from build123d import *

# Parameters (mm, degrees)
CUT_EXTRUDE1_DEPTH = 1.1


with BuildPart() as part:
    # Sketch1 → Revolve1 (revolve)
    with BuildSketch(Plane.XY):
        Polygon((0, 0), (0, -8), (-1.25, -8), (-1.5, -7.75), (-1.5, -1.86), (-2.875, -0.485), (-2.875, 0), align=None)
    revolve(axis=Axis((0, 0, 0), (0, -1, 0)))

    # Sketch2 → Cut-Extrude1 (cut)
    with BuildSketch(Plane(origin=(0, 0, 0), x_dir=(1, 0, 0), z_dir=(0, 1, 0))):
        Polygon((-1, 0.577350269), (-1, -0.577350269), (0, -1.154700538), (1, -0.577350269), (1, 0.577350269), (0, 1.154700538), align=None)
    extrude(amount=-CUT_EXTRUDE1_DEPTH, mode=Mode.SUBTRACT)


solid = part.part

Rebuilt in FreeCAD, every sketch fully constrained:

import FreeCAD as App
import Part
import Sketcher

V = App.Vector
Q = App.Units.Quantity


def add_polygon(sketch, points):
    """Adds a closed chain of lines whose ends are joined by coincident constraints."""
    first, n = sketch.GeometryCount, len(points)
    for a, b in zip(points, points[1:] + points[:1]):
        sketch.addGeometry(Part.LineSegment(App.Vector(*a, 0), App.Vector(*b, 0)), False)
    for i in range(n):
        sketch.addConstraint(Sketcher.Constraint("Coincident", first + i, 2, first + (i + 1) % n, 1))

doc = App.newDocument("Part")
body = doc.addObject("PartDesign::Body", "Body")

# Sketch on XY plane
sketch1 = doc.addObject("Sketcher::SketchObject", "Sketch")
body.addObject(sketch1)
sketch1.AttachmentSupport = (doc.XY_Plane, [""])
sketch1.MapMode = "FlatFace"
add_polygon(sketch1, [(0, -8), (0, 0), (-2.88, 0), (-2.88, -0.48), (-1.5, -1.86), (-1.5, -7.75), (-1.25, -8)])  # lines 0-6
sketch1.addConstraint([
    Sketcher.Constraint("Vertical", 0),
    Sketcher.Constraint("Horizontal", 1),
    Sketcher.Constraint("Vertical", 2),
    Sketcher.Constraint("Vertical", 4),
    Sketcher.Constraint("Horizontal", 6),
    Sketcher.Constraint("Coincident", 0, 2, -1, 1),
    Sketcher.Constraint("Parallel", 3, 5),
    Sketcher.Constraint("DistanceY", 0, 1, 0, 2, Q("8 mm")),
    Sketcher.Constraint("Angle", 3, Q("-45 deg")),
    Sketcher.Constraint("DistanceX", 6, 1, 6, 2, Q("1.25 mm")),
    Sketcher.Constraint("DistanceY", 4, 2, 4, 1, Q("5.89 mm")),
    Sketcher.Constraint("DistanceX", 3, 2, -1, 1, Q("1.5 mm")),
    Sketcher.Constraint("DistanceX", 1, 2, 1, 1, Q("2.875 mm")),
])
revolution = doc.addObject("PartDesign::Revolution", "Revolution")
body.addObject(revolution)
revolution.Profile = sketch1
revolution.ReferenceAxis = (sketch1, ["V_Axis"])
revolution.Angle = 360

# Sketch on XZ plane
sketch2 = doc.addObject("Sketcher::SketchObject", "Sketch001")
body.addObject(sketch2)
sketch2.AttachmentSupport = (doc.XZ_Plane, [""])
sketch2.MapMode = "FlatFace"
add_polygon(sketch2, [(-1, -0.6), (-1, 0.6), (0, 1.2), (1, 0.6), (1, -0.6), (0, -1.2)])  # lines 0-5
sketch2.addConstraint([
    Sketcher.Constraint("Vertical", 0),
    Sketcher.Constraint("Vertical", 3),
    Sketcher.Constraint("Symmetric", 0, 2, 3, 2, -1, 1),
    Sketcher.Constraint("Symmetric", 1, 2, 4, 2, -1, 1),
    Sketcher.Constraint("PointOnObject", 1, 2, -2),
    Sketcher.Constraint("Parallel", 2, 5),
    Sketcher.Constraint("Horizontal", 0, 2, 2, 2),
    Sketcher.Constraint("Angle", 1, Q("30 deg")),
    Sketcher.Constraint("DistanceX", 0, 2, -1, 1, Q("1 mm")),
    Sketcher.Constraint("DistanceY", 0, 1, 0, 2, Q("1.154701 mm")),
])
pocket1 = doc.addObject("PartDesign::Pocket", "Pocket")
body.addObject(pocket1)
pocket1.Profile = sketch2
pocket1.Length = 1.1
pocket1.Reversed = True

doc.recompute()
